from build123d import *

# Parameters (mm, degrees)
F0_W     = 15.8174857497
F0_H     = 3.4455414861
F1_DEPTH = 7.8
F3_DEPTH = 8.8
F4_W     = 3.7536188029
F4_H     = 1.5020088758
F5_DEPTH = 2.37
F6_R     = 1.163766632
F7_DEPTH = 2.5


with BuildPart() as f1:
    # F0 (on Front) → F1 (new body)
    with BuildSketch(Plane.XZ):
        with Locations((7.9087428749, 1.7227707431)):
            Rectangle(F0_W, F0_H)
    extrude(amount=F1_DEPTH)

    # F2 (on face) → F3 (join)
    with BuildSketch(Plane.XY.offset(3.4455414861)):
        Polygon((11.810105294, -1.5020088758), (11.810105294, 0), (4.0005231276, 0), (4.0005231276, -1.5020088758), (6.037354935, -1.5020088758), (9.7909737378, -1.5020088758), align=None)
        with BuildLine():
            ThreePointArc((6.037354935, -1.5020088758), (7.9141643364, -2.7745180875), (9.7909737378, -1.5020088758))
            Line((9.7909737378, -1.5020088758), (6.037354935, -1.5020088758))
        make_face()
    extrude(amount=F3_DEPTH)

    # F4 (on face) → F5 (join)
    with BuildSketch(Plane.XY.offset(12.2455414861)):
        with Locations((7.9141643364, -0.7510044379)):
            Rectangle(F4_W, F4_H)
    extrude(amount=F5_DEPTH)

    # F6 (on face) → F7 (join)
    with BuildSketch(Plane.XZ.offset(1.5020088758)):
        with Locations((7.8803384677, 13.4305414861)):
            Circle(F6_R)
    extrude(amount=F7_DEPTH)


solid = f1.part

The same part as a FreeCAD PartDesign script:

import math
import FreeCAD as App
import Part
import Sketcher


def add_polygon(sketch, points):
    """Adds a closed chain of lines whose ends are joined by coincident constraints."""
    first, n = sketch.GeometryCount, len(points)
    for a, b in zip(points, points[1:] + points[:1]):
        sketch.addGeometry(Part.LineSegment(App.Vector(*a, 0), App.Vector(*b, 0)), False)
    for i in range(n):
        sketch.addConstraint(Sketcher.Constraint("Coincident", first + i, 2, first + (i + 1) % n, 1))

doc = App.newDocument("Part")
body = doc.addObject("PartDesign::Body", "Body")

sketch1 = doc.addObject("Sketcher::SketchObject", "Sketch")
body.addObject(sketch1)
sketch1.AttachmentSupport = (doc.XZ_Plane, [""])
sketch1.MapMode = "FlatFace"
add_polygon(sketch1, [(0, 3.4), (0, 0), (15.8, 0), (15.8, 3.4)])
sketch1.addConstraint([
    Sketcher.Constraint("Vertical", 0),
    Sketcher.Constraint("Horizontal", 1),
    Sketcher.Constraint("Vertical", 2),
    Sketcher.Constraint("Horizontal", 3),
    Sketcher.Constraint("Coincident", 0, 2, -1, 1),
    Sketcher.Constraint("DistanceY", 0, 2, 0, 1, 3.445541),
    Sketcher.Constraint("DistanceX", 1, 1, 1, 2, 15.817486),
])
pad1 = doc.addObject("PartDesign::Pad", "Pad")
body.addObject(pad1)
pad1.Profile = sketch1
pad1.Length = 7.8

sketch2 = doc.addObject("Sketcher::SketchObject", "Sketch001")
body.addObject(sketch2)
sketch2.AttachmentSupport = (doc.XY_Plane, [""])
sketch2.MapMode = "FlatFace"
sketch2.AttachmentOffset = App.Placement(App.Vector(0, 0, 3.445541), App.Rotation())
sketch2.addGeometry([
    Part.LineSegment(App.Vector(11.8, -1.5, 0), App.Vector(11.8, 0, 0)),
    Part.LineSegment(App.Vector(11.8, 0, 0), App.Vector(4, 0, 0)),
    Part.LineSegment(App.Vector(4, 0, 0), App.Vector(4, -1.5, 0)),
    Part.LineSegment(App.Vector(4, -1.5, 0), App.Vector(6, -1.5, 0)),
    Part.ArcOfCircle(Part.Circle(App.Vector(7.9, -0.8, 0), App.Vector(0, 0, 1), 2), math.radians(-158), math.radians(-22)),
    Part.LineSegment(App.Vector(9.8, -1.5, 0), App.Vector(11.8, -1.5, 0)),
], False)
sketch2.addConstraint([
    Sketcher.Constraint("Coincident", 0, 2, 1, 1),
    Sketcher.Constraint("Coincident", 1, 2, 2, 1),
    Sketcher.Constraint("Coincident", 2, 2, 3, 1),
    Sketcher.Constraint("Coincident", 3, 2, 4, 1),
    Sketcher.Constraint("Coincident", 4, 2, 5, 1),
    Sketcher.Constraint("Coincident", 5, 2, 0, 1),
    Sketcher.Constraint("Vertical", 0),
    Sketcher.Constraint("Horizontal", 1),
    Sketcher.Constraint("Vertical", 2),
    Sketcher.Constraint("Horizontal", 3),
    Sketcher.Constraint("Horizontal", 5),
    Sketcher.Constraint("PointOnObject", 0, 2, -1),
    Sketcher.Constraint("Horizontal", 3, 2, 4, 2),
    Sketcher.Constraint("Radius", 4, 2.020297),
    Sketcher.Constraint("DistanceX", 3, 1, 3, 2, 2.036832),
    Sketcher.Constraint("DistanceX", 5, 1, 5, 2, 2.019132),
    Sketcher.Constraint("DistanceY", 0, 1, 0, 2, 1.502009),
    Sketcher.Constraint("DistanceX", 1, 2, 1, 1, 7.809582),
    Sketcher.Constraint("DistanceX", -1, 1, 4, 3, 7.914164),
])
pad2 = doc.addObject("PartDesign::Pad", "Pad001")
body.addObject(pad2)
pad2.Profile = sketch2
pad2.Length = 8.8

sketch3 = doc.addObject("Sketcher::SketchObject", "Sketch002")
body.addObject(sketch3)
sketch3.AttachmentSupport = (doc.XY_Plane, [""])
sketch3.MapMode = "FlatFace"
sketch3.AttachmentOffset = App.Placement(App.Vector(0, 0, 12.245541), App.Rotation())
add_polygon(sketch3, [(6, 0), (6, -1.5), (9.8, -1.5), (9.8, 0)])
sketch3.addConstraint([
    Sketcher.Constraint("Vertical", 0),
    Sketcher.Constraint("Horizontal", 1),
    Sketcher.Constraint("Vertical", 2),
    Sketcher.Constraint("Horizontal", 3),
    Sketcher.Constraint("PointOnObject", 2, 2, -1),
    Sketcher.Constraint("DistanceX", 1, 1, 1, 2, 3.753619),
    Sketcher.Constraint("DistanceY", 0, 2, 0, 1, 1.502009),
    Sketcher.Constraint("DistanceX", -1, 1, 0, 2, 6.037355),
])
pad3 = doc.addObject("PartDesign::Pad", "Pad002")
body.addObject(pad3)
pad3.Profile = sketch3
pad3.Length = 2.37

sketch4 = doc.addObject("Sketcher::SketchObject", "Sketch003")
body.addObject(sketch4)
sketch4.AttachmentSupport = (doc.XZ_Plane, [""])
sketch4.MapMode = "FlatFace"
sketch4.AttachmentOffset = App.Placement(App.Vector(0, 0, 1.502009), App.Rotation())
sketch4.addGeometry(Part.Circle(App.Vector(7.9, 13.4, 0), App.Vector(0, 0, 1), 1.2), False)
sketch4.addConstraint([
    Sketcher.Constraint("Diameter", 0, 2.327533),
    Sketcher.Constraint("DistanceX", -1, 1, 0, 3, 7.880338),
    Sketcher.Constraint("DistanceY", -1, 1, 0, 3, 13.430541),
])
pad4 = doc.addObject("PartDesign::Pad", "Pad003")
body.addObject(pad4)
pad4.Profile = sketch4
pad4.Length = 2.5

doc.recompute()
